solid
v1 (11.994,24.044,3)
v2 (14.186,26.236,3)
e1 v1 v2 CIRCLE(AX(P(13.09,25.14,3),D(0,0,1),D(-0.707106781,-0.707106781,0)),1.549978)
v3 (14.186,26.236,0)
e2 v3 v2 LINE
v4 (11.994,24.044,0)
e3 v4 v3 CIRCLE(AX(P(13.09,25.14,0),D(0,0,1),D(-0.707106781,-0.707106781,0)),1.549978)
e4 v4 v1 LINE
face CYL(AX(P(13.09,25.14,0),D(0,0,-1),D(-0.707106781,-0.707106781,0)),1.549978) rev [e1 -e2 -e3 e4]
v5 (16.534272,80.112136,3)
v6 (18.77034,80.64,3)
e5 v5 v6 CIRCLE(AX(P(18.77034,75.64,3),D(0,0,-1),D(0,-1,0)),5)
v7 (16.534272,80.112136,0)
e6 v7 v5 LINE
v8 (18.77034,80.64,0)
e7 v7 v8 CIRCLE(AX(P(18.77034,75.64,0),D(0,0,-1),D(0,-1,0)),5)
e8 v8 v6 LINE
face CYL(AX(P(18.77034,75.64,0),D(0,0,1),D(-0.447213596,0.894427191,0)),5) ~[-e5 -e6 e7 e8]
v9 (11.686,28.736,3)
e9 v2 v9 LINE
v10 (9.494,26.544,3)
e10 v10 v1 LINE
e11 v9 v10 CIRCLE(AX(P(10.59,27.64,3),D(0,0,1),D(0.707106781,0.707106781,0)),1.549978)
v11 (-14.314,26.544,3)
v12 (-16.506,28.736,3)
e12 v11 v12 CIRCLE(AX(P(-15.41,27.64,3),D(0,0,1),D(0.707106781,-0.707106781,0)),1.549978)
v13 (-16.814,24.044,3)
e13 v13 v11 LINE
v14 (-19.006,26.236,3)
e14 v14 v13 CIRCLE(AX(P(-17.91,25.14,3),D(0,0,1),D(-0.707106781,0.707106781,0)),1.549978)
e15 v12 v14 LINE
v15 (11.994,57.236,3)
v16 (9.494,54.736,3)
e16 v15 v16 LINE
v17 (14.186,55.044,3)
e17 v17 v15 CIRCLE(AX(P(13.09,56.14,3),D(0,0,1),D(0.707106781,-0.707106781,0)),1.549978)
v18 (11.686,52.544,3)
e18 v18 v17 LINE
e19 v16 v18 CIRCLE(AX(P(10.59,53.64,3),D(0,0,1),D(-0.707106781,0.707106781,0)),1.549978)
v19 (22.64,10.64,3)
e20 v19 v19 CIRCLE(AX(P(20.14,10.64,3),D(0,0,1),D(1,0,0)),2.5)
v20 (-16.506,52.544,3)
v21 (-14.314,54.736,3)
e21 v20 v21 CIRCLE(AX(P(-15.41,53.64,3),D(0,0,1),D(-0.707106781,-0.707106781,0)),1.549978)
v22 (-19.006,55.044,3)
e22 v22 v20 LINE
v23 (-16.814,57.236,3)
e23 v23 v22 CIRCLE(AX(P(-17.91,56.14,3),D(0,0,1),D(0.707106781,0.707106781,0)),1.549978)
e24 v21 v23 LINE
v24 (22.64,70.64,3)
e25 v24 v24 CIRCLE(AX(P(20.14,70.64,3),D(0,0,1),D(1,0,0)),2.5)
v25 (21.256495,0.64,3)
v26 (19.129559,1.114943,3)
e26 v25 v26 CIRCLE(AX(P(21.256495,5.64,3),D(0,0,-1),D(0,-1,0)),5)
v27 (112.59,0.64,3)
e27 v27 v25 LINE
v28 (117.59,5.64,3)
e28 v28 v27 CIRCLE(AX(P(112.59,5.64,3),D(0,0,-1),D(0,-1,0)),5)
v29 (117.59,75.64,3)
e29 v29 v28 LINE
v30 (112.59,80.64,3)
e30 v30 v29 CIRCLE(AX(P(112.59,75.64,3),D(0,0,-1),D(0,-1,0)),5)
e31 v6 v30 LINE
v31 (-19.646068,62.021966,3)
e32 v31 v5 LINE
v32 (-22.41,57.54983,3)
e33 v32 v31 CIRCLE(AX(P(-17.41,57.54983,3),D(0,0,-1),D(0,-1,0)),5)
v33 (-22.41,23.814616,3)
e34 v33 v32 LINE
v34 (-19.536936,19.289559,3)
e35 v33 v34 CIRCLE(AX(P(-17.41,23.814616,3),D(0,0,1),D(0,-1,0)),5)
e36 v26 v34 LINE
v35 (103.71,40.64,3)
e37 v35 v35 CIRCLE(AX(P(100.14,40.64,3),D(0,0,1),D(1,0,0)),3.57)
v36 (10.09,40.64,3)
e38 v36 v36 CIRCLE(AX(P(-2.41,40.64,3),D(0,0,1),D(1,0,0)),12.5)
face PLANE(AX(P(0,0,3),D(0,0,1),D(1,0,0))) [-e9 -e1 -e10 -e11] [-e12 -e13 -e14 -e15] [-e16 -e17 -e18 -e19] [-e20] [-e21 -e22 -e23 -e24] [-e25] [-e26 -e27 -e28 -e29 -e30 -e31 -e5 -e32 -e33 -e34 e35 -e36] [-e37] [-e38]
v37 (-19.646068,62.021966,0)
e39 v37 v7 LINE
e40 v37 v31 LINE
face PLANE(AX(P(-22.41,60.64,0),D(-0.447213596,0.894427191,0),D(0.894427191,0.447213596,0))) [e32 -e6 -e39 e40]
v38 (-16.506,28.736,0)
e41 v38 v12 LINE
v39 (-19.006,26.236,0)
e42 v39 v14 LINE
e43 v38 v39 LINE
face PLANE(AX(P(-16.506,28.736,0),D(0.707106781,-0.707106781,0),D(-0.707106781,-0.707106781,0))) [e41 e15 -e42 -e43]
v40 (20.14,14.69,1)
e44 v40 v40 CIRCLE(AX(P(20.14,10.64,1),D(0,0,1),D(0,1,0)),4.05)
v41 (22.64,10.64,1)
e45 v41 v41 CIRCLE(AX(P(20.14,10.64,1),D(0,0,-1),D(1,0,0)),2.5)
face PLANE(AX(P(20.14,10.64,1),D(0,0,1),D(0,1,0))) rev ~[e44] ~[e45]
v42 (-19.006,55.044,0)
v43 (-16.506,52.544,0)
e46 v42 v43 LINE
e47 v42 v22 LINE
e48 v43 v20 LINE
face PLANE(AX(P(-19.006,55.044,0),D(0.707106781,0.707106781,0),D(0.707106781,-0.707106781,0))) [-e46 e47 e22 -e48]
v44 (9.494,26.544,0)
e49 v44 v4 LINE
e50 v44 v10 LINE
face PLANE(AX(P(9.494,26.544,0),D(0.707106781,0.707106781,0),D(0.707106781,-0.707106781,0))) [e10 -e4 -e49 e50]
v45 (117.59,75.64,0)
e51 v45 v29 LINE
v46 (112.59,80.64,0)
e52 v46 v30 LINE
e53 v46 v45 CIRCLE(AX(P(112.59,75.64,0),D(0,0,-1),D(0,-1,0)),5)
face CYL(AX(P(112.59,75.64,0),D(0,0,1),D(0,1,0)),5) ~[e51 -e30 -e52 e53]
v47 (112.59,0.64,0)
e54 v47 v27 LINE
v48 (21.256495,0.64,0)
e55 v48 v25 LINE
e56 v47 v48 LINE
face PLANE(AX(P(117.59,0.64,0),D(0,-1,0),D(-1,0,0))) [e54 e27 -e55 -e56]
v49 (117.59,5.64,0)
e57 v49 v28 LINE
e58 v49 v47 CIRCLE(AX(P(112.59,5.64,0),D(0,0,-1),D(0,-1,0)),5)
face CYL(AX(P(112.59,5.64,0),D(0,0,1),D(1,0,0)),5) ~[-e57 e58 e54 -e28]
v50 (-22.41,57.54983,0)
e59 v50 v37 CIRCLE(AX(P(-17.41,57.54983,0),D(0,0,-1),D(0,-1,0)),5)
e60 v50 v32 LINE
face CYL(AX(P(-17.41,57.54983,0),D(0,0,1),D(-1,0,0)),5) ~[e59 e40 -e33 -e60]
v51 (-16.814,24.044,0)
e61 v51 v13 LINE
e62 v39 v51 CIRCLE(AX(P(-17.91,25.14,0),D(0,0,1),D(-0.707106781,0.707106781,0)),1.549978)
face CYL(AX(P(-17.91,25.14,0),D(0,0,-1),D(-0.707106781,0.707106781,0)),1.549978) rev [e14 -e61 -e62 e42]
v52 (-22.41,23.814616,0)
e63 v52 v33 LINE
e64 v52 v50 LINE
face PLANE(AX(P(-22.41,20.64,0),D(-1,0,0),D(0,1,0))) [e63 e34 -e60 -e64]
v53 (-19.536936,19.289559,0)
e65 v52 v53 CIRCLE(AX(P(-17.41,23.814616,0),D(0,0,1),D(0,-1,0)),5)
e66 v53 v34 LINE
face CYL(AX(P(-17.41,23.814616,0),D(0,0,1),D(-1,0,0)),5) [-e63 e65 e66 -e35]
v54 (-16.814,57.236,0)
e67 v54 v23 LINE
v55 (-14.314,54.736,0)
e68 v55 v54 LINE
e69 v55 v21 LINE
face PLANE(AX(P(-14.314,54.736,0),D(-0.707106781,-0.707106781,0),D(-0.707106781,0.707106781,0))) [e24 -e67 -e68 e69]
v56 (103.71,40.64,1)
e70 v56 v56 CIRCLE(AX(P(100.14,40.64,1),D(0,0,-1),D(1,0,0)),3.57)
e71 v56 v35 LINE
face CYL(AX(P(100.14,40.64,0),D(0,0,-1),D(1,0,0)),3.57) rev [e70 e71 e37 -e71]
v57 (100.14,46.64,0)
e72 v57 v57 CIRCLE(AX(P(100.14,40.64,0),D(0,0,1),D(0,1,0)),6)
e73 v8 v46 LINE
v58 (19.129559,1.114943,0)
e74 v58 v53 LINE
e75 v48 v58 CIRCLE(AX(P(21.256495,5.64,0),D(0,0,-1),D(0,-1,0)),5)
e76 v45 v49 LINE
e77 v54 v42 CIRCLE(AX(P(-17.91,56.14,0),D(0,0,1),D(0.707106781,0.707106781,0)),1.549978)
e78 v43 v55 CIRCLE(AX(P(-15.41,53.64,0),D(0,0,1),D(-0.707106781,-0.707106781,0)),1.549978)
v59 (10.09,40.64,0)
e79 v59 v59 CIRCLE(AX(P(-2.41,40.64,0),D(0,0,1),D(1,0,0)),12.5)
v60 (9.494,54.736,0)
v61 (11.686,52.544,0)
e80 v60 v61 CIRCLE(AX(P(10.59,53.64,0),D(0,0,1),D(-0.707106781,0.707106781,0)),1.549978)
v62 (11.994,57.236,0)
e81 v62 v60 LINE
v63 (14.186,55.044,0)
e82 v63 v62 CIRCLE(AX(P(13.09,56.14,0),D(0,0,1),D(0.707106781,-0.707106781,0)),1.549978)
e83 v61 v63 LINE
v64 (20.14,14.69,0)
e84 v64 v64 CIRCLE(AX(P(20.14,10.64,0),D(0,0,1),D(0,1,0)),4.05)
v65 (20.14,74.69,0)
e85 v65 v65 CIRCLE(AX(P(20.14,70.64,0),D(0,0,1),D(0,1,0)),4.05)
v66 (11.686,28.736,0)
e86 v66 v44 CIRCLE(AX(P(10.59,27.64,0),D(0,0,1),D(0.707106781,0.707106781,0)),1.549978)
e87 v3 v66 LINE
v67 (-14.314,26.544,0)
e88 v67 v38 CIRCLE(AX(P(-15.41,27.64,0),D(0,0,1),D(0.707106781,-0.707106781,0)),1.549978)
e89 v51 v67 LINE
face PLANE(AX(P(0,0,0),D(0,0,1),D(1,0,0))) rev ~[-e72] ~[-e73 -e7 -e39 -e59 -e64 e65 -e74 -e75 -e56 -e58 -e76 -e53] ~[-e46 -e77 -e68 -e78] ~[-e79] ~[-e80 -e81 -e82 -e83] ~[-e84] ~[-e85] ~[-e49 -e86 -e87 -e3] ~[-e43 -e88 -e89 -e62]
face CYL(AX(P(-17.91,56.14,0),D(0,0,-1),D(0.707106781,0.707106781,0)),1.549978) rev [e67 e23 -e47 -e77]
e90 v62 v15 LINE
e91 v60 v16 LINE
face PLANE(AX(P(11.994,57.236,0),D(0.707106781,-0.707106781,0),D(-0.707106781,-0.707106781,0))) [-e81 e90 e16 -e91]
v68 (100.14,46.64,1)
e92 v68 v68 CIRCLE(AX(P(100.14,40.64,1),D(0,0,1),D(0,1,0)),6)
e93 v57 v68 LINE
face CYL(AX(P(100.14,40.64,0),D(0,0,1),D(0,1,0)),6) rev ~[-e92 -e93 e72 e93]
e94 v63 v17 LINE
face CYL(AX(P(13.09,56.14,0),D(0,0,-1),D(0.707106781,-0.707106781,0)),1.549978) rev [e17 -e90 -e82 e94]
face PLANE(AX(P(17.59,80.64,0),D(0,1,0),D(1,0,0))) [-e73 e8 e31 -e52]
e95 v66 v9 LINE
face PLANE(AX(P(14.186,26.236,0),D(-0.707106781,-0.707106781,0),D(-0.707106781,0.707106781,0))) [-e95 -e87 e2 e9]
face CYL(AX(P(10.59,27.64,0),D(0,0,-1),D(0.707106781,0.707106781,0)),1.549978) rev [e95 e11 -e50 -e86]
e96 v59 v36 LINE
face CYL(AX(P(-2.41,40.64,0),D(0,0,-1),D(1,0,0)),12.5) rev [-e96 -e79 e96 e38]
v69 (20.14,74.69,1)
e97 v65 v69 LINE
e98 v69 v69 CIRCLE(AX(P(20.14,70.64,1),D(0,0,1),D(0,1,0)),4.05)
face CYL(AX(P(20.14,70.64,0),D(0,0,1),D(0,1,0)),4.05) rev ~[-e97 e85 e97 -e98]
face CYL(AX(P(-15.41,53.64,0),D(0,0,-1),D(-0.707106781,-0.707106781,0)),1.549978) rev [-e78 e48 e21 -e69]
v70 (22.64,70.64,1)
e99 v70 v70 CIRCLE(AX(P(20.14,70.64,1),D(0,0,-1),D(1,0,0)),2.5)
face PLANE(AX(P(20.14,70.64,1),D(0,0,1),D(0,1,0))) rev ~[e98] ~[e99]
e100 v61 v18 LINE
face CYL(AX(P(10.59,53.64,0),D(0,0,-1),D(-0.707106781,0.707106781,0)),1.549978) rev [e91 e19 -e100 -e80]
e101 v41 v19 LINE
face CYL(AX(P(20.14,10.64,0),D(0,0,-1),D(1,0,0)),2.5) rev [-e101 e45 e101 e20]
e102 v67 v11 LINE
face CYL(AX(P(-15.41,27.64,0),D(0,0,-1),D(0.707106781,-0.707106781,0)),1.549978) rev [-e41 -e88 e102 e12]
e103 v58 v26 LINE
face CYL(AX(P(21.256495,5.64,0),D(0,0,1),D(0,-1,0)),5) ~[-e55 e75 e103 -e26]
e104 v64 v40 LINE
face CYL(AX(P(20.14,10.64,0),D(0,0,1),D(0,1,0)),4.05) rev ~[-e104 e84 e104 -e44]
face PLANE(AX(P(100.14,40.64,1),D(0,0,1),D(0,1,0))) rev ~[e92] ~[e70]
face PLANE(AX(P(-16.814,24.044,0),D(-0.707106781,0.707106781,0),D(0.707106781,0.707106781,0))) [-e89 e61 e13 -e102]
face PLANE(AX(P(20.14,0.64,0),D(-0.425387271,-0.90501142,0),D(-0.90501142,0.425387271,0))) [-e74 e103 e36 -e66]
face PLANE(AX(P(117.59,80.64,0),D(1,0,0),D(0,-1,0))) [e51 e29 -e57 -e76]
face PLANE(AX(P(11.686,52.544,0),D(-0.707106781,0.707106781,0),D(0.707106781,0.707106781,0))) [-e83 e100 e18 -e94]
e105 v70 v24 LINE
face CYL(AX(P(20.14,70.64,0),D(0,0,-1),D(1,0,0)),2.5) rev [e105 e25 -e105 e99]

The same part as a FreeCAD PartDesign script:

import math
import FreeCAD as App
import Part
import Sketcher
from FreeCAD import Vector


def edges_at(feature, points):
    """Names of the edges that pass closest to the given points."""
    edges = feature.Shape.Edges
    near = lambda p: min(range(len(edges)), key=lambda i: edges[i].distToShape(Part.Vertex(*p))[0])
    return sorted({f"Edge{near(p) + 1}" for p in points})

doc = App.newDocument("Part")
body = doc.addObject("PartDesign::Body", "Body")

sketch1 = body.newObject("Sketcher::SketchObject", "Sketch")
sketch1.AttachmentSupport = (doc.getObject("XY_Plane"), [""])
sketch1.MapMode = "FlatFace"
sketch1.addGeometry(Part.LineSegment(Vector(-22.4, 60.6, 0), Vector(-22.4, 20.6, 0)), False)
sketch1.addGeometry(Part.LineSegment(Vector(-22.4, 20.6, 0), Vector(20.1, 0.6, 0)), False)
sketch1.addGeometry(Part.LineSegment(Vector(20.1, 0.6, 0), Vector(117.6, 0.6, 0)), False)
sketch1.addGeometry(Part.LineSegment(Vector(117.6, 0.6, 0), Vector(117.6, 80.6, 0)), False)
sketch1.addGeometry(Part.LineSegment(Vector(117.6, 80.6, 0), Vector(17.6, 80.6, 0)), False)
sketch1.addGeometry(Part.LineSegment(Vector(17.6, 80.6, 0), Vector(-22.4, 60.6, 0)), False)
sketch1.addGeometry(Part.Circle(Vector(20.1, 10.6, 0), Vector(0, 0, 1), 2.5), False)
sketch1.addGeometry(Part.LineSegment(Vector(-19, 26.2, 0), Vector(-16.5, 28.7, 0)), False)
sketch1.addGeometry(Part.ArcOfCircle(Part.Circle(Vector(-15.4, 27.6, 0), Vector(0, 0, 1), 1.5), math.radians(-45), math.radians(135)), False)
sketch1.addGeometry(Part.LineSegment(Vector(-14.3, 26.5, 0), Vector(-16.8, 24, 0)), False)
sketch1.addGeometry(Part.ArcOfCircle(Part.Circle(Vector(-17.9, 25.1, 0), Vector(0, 0, 1), 1.5), math.radians(135), math.radians(315)), False)
sketch1.addGeometry(Part.LineSegment(Vector(12, 24, 0), Vector(9.5, 26.5, 0)), False)
sketch1.addGeometry(Part.ArcOfCircle(Part.Circle(Vector(10.6, 27.6, 0), Vector(0, 0, 1), 1.5), math.radians(45), math.radians(225)), False)
sketch1.addGeometry(Part.LineSegment(Vector(11.7, 28.7, 0), Vector(14.2, 26.2, 0)), False)
sketch1.addGeometry(Part.ArcOfCircle(Part.Circle(Vector(13.1, 25.1, 0), Vector(0, 0, 1), 1.5), math.radians(-135), math.radians(45)), False)
sketch1.addGeometry(Part.Circle(Vector(-2.4, 40.6, 0), Vector(0, 0, 1), 12.5), False)
sketch1.addGeometry(Part.LineSegment(Vector(-16.5, 52.5, 0), Vector(-19, 55, 0)), False)
sketch1.addGeometry(Part.ArcOfCircle(Part.Circle(Vector(-17.9, 56.1, 0), Vector(0, 0, 1), 1.5), math.radians(45), math.radians(225)), False)
sketch1.addGeometry(Part.LineSegment(Vector(-16.8, 57.2, 0), Vector(-14.3, 54.7, 0)), False)
sketch1.addGeometry(Part.ArcOfCircle(Part.Circle(Vector(-15.4, 53.6, 0), Vector(0, 0, 1), 1.5), math.radians(-135), math.radians(45)), False)
sketch1.addGeometry(Part.LineSegment(Vector(14.2, 55, 0), Vector(11.7, 52.5, 0)), False)
sketch1.addGeometry(Part.ArcOfCircle(Part.Circle(Vector(10.6, 53.6, 0), Vector(0, 0, 1), 1.5), math.radians(135), math.radians(315)), False)
sketch1.addGeometry(Part.LineSegment(Vector(9.5, 54.7, 0), Vector(12, 57.2, 0)), False)
sketch1.addGeometry(Part.ArcOfCircle(Part.Circle(Vector(13.1, 56.1, 0), Vector(0, 0, 1), 1.5), math.radians(-45), math.radians(135)), False)
sketch1.addGeometry(Part.Circle(Vector(20.1, 70.6, 0), Vector(0, 0, 1), 2.5), False)
sketch1.addGeometry(Part.Circle(Vector(100.1, 40.6, 0), Vector(0, 0, 1), 3.6), False)
sketch1.addConstraint(Sketcher.Constraint("Coincident", 0, 2, 1, 1))
sketch1.addConstraint(Sketcher.Constraint("Coincident", 1, 2, 2, 1))
sketch1.addConstraint(Sketcher.Constraint("Coincident", 2, 2, 3, 1))
sketch1.addConstraint(Sketcher.Constraint("Coincident", 3, 2, 4, 1))
sketch1.addConstraint(Sketcher.Constraint("Coincident", 4, 2, 5, 1))
sketch1.addConstraint(Sketcher.Constraint("Coincident", 5, 2, 0, 1))
sketch1.addConstraint(Sketcher.Constraint("Tangent", 7, 2, 8, 2))
sketch1.addConstraint(Sketcher.Constraint("Tangent", 8, 1, 9, 1))
sketch1.addConstraint(Sketcher.Constraint("Tangent", 9, 2, 10, 2))
sketch1.addConstraint(Sketcher.Constraint("Tangent", 10, 1, 7, 1))
sketch1.addConstraint(Sketcher.Constraint("Tangent", 11, 2, 12, 2))
sketch1.addConstraint(Sketcher.Constraint("Tangent", 12, 1, 13, 1))
sketch1.addConstraint(Sketcher.Constraint("Tangent", 13, 2, 14, 2))
sketch1.addConstraint(Sketcher.Constraint("Tangent", 14, 1, 11, 1))
sketch1.addConstraint(Sketcher.Constraint("Tangent", 16, 2, 17, 2))
sketch1.addConstraint(Sketcher.Constraint("Tangent", 17, 1, 18, 1))
sketch1.addConstraint(Sketcher.Constraint("Tangent", 18, 2, 19, 2))
sketch1.addConstraint(Sketcher.Constraint("Tangent", 19, 1, 16, 1))
sketch1.addConstraint(Sketcher.Constraint("Tangent", 20, 2, 21, 2))
sketch1.addConstraint(Sketcher.Constraint("Tangent", 21, 1, 22, 1))
sketch1.addConstraint(Sketcher.Constraint("Tangent", 22, 2, 23, 2))
sketch1.addConstraint(Sketcher.Constraint("Tangent", 23, 1, 20, 1))
sketch1.addConstraint(Sketcher.Constraint("Vertical", 0))
sketch1.addConstraint(Sketcher.Constraint("Horizontal", 2))
sketch1.addConstraint(Sketcher.Constraint("Vertical", 3))
sketch1.addConstraint(Sketcher.Constraint("Horizontal", 4))
sketch1.addConstraint(Sketcher.Constraint("Equal", 8, 10))
sketch1.addConstraint(Sketcher.Constraint("Equal", 10, 12))
sketch1.addConstraint(Sketcher.Constraint("Equal", 12, 14))
sketch1.addConstraint(Sketcher.Constraint("Equal", 14, 17))
sketch1.addConstraint(Sketcher.Constraint("Equal", 17, 19))
sketch1.addConstraint(Sketcher.Constraint("Equal", 19, 21))
sketch1.addConstraint(Sketcher.Constraint("Equal", 21, 23))
sketch1.addConstraint(Sketcher.Constraint("Equal", 6, 24))
sketch1.addConstraint(Sketcher.Constraint("Perpendicular", 9, 11))
sketch1.addConstraint(Sketcher.Constraint("Parallel", 13, 16))
sketch1.addConstraint(Sketcher.Constraint("Perpendicular", 18, 20))
sketch1.addConstraint(Sketcher.Constraint("Horizontal", 8, 3, 12, 3))
sketch1.addConstraint(Sketcher.Constraint("Horizontal", 10, 3, 14, 3))
sketch1.addConstraint(Sketcher.Constraint("Horizontal", 19, 3, 21, 3))
sketch1.addConstraint(Sketcher.Constraint("Horizontal", 17, 3, 23, 3))
sketch1.addConstraint(Sketcher.Constraint("Horizontal", 15, 3, 25, 3))
sketch1.addConstraint(Sketcher.Constraint("Horizontal", 8, 1, 11, 2))
sketch1.addConstraint(Sketcher.Constraint("Vertical", 10, 3, 17, 3))
sketch1.addConstraint(Sketcher.Constraint("Vertical", 8, 3, 19, 3))
sketch1.addConstraint(Sketcher.Constraint("Vertical", 12, 3, 21, 3))
sketch1.addConstraint(Sketcher.Constraint("Vertical", 6, 3, 24, 3))
sketch1.addConstraint(Sketcher.Constraint("Vertical", 24, 3, 1, 2))
sketch1.addConstraint(Sketcher.Constraint("DistanceX", 4, 2, 4, 1, 100.0))
sketch1.addConstraint(Sketcher.Constraint("DistanceY", 0, 2, 0, 1, 40.0))
sketch1.addConstraint(Sketcher.Constraint("DistanceY", 3, 1, 3, 2, 80.0))
sketch1.addConstraint(Sketcher.Constraint("Diameter", 6, 5.0))
sketch1.addConstraint(Sketcher.Constraint("Diameter", 15, 25.0))
sketch1.addConstraint(Sketcher.Constraint("DistanceX", 6, 3, 25, 3, 80.0))
sketch1.addConstraint(Sketcher.Constraint("DistanceX", 0, 2, 15, 3, 20.0))
sketch1.addConstraint(Sketcher.Constraint("DistanceY", 0, 2, 15, 3, 20.0))
sketch1.addConstraint(Sketcher.Constraint("DistanceY", 1, 2, 6, 3, 10.0))
sketch1.addConstraint(Sketcher.Constraint("DistanceY", 2, 2, 25, 3, 40.0))
sketch1.addConstraint(Sketcher.Constraint("DistanceY", 24, 3, 3, 2, 10.0))
sketch1.addConstraint(Sketcher.Constraint("Diameter", 25, 7.14))
sketch1.addConstraint(Sketcher.Constraint("Radius", 8, 1.55))
sketch1.addConstraint(Sketcher.Constraint("DistanceY", 6, 3, 8, 3, 17.0))
sketch1.addConstraint(Sketcher.Constraint("DistanceX", 8, 3, 12, 3, 26.0))
sketch1.addConstraint(Sketcher.Constraint("DistanceX", 10, 3, 14, 3, 31.0))
sketch1.addConstraint(Sketcher.Constraint("DistanceX", 8, 3, 15, 3, 13.0))
sketch1.addConstraint(Sketcher.Constraint("DistanceY", 10, 3, 17, 3, 31.0))
sketch1.addConstraint(Sketcher.Constraint("DistanceX", 12, 3, 2, 2, 107.0))
sketch1.addConstraint(Sketcher.Constraint("DistanceX", 2, 1, 2, 2, 97.45))
sketch1.addConstraint(Sketcher.Constraint("DistanceX", -1, 1, 6, 3, 20.14))
sketch1.addConstraint(Sketcher.Constraint("DistanceY", -1, 1, 6, 3, 10.64))
pad1 = body.newObject("PartDesign::Pad", "Pad")
pad1.Profile = sketch1
pad1.Length = 3
doc.recompute()

fillet = body.newObject("PartDesign::Fillet", "Fillet")
fillet.Base = (pad1, edges_at(pad1, [
    (117.59, 80.64, 1.5),
    (117.59, 0.64, 1.5),
    (17.59, 80.64, 1.5),
    (-22.41, 60.64, 1.5),
    (-22.41, 20.64, 1.5),
    (20.14, 0.64, 1.5),
]))
fillet.Radius = 5

sketch2 = body.newObject("Sketcher::SketchObject", "Sketch001")
sketch2.AttachmentSupport = (doc.getObject("XY_Plane"), [""])
sketch2.MapMode = "FlatFace"
sketch2.addGeometry(Part.Circle(Vector(100, 41, 0), Vector(0, 0, 1), 6), False)
sketch2.addConstraint(Sketcher.Constraint("Diameter", 0, 12.0))
sketch2.addConstraint(Sketcher.Constraint("DistanceX", -1, 1, 0, 3, 100.14))
sketch2.addConstraint(Sketcher.Constraint("DistanceY", -1, 1, 0, 3, 40.64))
doc.recompute()
hole = body.newObject("PartDesign::Hole", "Hole")
hole.Profile = sketch2
hole.ThreadType = "None"
hole.Diameter = 12
hole.DepthType = "Dimension"
hole.Depth = 1
hole.DrillPoint = "Flat"
hole.Reversed = True

sketch3 = body.newObject("Sketcher::SketchObject", "Sketch002")
sketch3.AttachmentSupport = (doc.getObject("XY_Plane"), [""])
sketch3.MapMode = "FlatFace"
sketch3.addGeometry(Part.Circle(Vector(20.1, 10.6, 0), Vector(0, 0, 1), 4), False)
sketch3.addGeometry(Part.Circle(Vector(20.1, 70.6, 0), Vector(0, 0, 1), 4), False)
sketch3.addConstraint(Sketcher.Constraint("Equal", 0, 1))
sketch3.addConstraint(Sketcher.Constraint("Vertical", 0, 3, 1, 3))
sketch3.addConstraint(Sketcher.Constraint("Diameter", 0, 8.1))
sketch3.addConstraint(Sketcher.Constraint("DistanceY", 0, 3, 1, 3, 60.0))
sketch3.addConstraint(Sketcher.Constraint("DistanceX", -1, 1, 0, 3, 20.14))
sketch3.addConstraint(Sketcher.Constraint("DistanceY", -1, 1, 0, 3, 10.64))
doc.recompute()
hole2 = body.newObject("PartDesign::Hole", "Hole001")
hole2.Profile = sketch3
hole2.ThreadType = "None"
hole2.Diameter = 8.1
hole2.DepthType = "Dimension"
hole2.Depth = 1
hole2.DrillPoint = "Flat"
hole2.Reversed = True

doc.recompute()
